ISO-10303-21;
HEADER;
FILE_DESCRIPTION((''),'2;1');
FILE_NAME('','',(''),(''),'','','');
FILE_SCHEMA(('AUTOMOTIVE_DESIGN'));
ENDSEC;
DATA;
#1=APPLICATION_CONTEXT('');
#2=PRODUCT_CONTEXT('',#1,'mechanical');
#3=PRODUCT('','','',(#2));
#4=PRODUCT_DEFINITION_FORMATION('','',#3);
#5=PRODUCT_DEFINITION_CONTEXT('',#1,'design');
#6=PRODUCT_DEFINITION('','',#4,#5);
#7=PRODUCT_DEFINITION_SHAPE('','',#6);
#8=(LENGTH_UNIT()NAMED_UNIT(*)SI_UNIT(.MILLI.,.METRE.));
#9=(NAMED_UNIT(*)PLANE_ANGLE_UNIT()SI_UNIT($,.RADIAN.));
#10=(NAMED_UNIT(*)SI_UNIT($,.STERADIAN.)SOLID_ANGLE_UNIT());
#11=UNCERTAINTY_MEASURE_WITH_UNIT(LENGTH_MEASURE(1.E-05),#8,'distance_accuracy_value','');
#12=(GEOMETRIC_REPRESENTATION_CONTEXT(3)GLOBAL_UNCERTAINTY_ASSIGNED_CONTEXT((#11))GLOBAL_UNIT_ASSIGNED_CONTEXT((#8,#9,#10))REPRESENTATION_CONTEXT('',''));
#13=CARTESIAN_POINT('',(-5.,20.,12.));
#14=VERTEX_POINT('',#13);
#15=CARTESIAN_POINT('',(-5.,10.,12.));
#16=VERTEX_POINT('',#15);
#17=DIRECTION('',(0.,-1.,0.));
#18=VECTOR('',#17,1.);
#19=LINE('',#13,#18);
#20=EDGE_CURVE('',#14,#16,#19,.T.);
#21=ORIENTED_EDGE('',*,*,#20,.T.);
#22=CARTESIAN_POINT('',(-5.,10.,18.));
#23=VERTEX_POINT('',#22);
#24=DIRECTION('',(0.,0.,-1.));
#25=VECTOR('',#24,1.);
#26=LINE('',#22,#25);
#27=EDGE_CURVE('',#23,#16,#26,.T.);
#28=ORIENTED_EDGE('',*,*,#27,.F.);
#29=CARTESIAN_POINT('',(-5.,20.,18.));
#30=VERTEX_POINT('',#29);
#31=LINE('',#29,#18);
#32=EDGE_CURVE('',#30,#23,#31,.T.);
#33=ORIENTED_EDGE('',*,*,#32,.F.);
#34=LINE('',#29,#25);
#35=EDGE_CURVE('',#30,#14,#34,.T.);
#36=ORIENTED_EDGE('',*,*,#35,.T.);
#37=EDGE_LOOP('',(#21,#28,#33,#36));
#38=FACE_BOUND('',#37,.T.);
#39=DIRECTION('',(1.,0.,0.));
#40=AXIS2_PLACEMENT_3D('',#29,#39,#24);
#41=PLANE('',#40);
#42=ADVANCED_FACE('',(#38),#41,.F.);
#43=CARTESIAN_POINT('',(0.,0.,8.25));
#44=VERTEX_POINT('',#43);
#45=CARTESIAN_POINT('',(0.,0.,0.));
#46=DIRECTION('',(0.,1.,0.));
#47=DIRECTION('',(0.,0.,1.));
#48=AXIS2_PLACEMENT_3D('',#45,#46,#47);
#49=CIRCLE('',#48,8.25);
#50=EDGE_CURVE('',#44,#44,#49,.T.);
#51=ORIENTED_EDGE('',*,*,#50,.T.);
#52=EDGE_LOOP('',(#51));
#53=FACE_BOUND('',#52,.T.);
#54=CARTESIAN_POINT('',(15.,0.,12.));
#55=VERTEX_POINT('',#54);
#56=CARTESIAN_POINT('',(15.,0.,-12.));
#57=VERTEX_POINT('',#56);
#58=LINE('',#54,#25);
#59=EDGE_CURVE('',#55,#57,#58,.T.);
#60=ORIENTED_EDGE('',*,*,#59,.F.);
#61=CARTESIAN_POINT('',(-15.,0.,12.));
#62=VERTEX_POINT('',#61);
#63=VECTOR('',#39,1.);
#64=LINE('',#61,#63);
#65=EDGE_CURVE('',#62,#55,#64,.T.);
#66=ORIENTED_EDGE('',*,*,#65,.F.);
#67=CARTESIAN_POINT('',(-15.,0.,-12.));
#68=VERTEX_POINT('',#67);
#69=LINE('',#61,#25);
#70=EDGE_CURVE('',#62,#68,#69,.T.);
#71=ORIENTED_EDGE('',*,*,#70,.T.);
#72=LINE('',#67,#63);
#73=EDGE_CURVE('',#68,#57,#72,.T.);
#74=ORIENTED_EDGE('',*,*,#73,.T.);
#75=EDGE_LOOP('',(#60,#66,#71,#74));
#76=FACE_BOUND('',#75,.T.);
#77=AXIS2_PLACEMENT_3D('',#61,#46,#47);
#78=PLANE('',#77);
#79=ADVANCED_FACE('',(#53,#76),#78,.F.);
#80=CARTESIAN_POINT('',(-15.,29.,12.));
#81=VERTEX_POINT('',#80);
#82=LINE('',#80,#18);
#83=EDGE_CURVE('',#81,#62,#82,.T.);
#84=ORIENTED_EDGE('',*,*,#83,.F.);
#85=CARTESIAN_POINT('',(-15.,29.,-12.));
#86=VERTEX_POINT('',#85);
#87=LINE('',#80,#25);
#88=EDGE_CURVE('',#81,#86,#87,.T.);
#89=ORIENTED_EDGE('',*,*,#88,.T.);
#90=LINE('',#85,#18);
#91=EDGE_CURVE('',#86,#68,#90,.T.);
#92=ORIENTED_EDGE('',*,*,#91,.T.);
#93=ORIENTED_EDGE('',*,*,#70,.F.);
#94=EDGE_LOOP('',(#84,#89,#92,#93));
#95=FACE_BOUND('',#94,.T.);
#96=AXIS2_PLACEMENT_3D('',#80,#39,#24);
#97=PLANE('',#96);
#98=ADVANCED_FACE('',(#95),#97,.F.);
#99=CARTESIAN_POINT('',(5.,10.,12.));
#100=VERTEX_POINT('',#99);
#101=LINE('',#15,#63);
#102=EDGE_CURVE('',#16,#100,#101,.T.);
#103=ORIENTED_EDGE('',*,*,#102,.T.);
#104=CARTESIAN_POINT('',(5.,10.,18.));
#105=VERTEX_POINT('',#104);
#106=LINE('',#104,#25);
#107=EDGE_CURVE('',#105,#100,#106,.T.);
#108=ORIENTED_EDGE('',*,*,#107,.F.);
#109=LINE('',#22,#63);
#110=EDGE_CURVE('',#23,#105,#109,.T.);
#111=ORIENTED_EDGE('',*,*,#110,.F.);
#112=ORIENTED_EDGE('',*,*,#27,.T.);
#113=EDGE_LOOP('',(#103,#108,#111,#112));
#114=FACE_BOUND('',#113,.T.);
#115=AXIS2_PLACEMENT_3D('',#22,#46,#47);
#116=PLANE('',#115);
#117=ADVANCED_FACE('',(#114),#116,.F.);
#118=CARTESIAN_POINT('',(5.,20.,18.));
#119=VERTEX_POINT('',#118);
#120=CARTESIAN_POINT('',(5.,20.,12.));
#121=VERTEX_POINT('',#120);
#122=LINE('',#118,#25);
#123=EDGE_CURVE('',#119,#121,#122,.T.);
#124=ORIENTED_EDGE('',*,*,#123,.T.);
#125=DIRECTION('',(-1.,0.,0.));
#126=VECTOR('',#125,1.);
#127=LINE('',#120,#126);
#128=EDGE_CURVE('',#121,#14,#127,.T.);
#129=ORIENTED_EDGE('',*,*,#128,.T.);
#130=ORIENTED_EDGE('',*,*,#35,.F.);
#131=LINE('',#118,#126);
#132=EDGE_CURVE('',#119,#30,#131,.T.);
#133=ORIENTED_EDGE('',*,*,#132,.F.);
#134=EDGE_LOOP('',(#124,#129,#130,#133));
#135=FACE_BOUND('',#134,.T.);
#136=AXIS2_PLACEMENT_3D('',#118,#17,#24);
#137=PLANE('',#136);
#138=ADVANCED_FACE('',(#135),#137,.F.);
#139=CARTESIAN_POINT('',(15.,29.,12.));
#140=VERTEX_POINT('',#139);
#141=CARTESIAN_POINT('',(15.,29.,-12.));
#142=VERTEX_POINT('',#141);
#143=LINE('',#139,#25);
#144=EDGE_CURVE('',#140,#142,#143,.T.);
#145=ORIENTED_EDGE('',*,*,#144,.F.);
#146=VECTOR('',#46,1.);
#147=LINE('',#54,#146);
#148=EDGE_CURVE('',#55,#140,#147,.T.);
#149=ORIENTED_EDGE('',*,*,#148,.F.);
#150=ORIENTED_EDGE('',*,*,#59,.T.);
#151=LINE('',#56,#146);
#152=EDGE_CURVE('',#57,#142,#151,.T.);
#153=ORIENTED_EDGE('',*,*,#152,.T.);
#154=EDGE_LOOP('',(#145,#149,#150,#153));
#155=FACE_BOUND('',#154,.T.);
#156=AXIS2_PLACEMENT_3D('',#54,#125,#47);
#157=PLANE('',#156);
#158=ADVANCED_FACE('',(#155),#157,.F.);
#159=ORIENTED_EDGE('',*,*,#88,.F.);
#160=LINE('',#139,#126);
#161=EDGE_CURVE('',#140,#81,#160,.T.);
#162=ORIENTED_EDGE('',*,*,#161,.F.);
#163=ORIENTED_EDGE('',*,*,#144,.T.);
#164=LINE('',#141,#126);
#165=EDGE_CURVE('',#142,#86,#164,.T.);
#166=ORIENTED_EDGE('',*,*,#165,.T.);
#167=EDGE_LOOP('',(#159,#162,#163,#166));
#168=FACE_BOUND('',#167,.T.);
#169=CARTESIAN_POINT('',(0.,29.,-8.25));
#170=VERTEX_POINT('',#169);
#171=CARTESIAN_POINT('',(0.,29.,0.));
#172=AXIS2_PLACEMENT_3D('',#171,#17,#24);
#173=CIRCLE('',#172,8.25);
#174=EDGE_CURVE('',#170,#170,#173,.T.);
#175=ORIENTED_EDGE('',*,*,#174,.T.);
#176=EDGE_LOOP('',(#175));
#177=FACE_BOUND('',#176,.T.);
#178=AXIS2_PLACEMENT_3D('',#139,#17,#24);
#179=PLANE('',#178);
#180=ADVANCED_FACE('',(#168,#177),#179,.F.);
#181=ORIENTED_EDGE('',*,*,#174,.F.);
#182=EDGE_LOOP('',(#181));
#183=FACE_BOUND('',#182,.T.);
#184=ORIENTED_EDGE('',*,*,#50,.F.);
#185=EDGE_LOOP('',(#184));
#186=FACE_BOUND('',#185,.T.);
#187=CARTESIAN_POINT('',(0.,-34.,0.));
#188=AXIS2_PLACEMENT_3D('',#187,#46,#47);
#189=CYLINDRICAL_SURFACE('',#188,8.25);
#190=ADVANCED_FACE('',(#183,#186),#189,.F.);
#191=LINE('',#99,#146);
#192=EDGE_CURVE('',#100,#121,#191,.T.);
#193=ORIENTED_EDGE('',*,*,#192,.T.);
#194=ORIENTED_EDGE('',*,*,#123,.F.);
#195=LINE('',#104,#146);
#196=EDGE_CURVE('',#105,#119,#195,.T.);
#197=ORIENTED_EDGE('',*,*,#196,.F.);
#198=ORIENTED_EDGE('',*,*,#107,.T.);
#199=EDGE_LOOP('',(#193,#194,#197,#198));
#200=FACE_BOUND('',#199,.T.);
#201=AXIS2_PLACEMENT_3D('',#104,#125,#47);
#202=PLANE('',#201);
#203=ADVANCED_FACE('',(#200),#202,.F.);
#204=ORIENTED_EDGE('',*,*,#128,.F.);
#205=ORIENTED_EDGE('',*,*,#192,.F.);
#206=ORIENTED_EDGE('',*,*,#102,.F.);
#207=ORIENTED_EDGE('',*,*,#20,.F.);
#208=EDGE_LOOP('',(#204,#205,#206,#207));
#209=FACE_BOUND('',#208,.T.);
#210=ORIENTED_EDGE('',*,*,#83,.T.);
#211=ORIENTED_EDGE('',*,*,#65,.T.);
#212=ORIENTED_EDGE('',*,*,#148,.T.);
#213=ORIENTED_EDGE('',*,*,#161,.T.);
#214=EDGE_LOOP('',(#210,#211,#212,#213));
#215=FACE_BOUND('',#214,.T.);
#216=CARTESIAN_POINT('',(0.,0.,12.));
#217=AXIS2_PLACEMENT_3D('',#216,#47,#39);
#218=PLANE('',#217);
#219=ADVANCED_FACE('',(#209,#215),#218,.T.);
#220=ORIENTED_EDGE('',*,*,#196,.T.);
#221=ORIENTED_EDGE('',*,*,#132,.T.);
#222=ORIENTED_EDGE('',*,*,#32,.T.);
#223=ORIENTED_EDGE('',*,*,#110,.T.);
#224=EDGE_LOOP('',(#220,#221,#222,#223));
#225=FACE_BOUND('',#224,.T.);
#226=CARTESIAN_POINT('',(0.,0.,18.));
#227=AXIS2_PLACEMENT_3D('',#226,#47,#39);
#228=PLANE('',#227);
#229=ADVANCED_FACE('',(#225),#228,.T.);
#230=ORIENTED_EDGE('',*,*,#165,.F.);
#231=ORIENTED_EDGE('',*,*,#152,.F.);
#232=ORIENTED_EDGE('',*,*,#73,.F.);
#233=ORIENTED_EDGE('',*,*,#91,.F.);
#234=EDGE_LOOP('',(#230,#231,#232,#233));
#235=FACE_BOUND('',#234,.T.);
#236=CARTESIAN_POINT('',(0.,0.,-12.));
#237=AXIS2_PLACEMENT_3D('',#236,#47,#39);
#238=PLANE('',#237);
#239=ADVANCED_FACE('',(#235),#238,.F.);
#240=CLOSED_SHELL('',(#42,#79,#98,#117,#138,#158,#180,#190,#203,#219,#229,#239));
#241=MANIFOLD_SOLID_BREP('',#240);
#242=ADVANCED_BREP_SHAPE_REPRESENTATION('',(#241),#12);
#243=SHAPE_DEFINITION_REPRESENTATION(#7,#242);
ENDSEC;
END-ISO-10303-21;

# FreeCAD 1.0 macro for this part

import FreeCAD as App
import Part
import Sketcher
from FreeCAD import Vector
Q = App.Units.Quantity

doc = App.newDocument("Part")
params = doc.addObject("Spreadsheet::Sheet", "Params")
for row, (alias, value) in enumerate([
    ("sketch1_width", "30 mm"),
    ("sketch1_height", "29 mm"),
    ("pad1_length", "24 mm"),
    ("sketch2_diameter", "16.5 mm"),
    ("pocket1_length", "68 mm"),
    ("sketch3_width", "10 mm"),
    ("pad2_length", "6 mm"),
], start=1):
    params.set(f"A{row}", alias)
    params.set(f"B{row}", "=" + value)
    params.setAlias(f"B{row}", alias)

body = doc.addObject("PartDesign::Body", "Body")

# Sketch on XY plane
sketch1 = body.newObject("Sketcher::SketchObject", "Sketch")
sketch1.AttachmentSupport = (doc.getObject("XY_Plane"), [""])
sketch1.MapMode = "FlatFace"
sketch1.addGeometry(Part.LineSegment(Vector(-15, 29, 0), Vector(-15, 0, 0)), False)
sketch1.addGeometry(Part.LineSegment(Vector(-15, 0, 0), Vector(15, 0, 0)), False)
sketch1.addGeometry(Part.LineSegment(Vector(15, 0, 0), Vector(15, 29, 0)), False)
sketch1.addGeometry(Part.LineSegment(Vector(15, 29, 0), Vector(-15, 29, 0)), False)
sketch1.addConstraint(Sketcher.Constraint("Coincident", 0, 2, 1, 1))
sketch1.addConstraint(Sketcher.Constraint("Coincident", 1, 2, 2, 1))
sketch1.addConstraint(Sketcher.Constraint("Coincident", 2, 2, 3, 1))
sketch1.addConstraint(Sketcher.Constraint("Coincident", 3, 2, 0, 1))
sketch1.addConstraint(Sketcher.Constraint("Vertical", 0))
sketch1.addConstraint(Sketcher.Constraint("Horizontal", 1))
sketch1.addConstraint(Sketcher.Constraint("Vertical", 2))
sketch1.addConstraint(Sketcher.Constraint("Horizontal", 3))
sketch1.addConstraint(Sketcher.Constraint("Symmetric", 0, 2, 1, 2, -1, 1))
sketch1.addConstraint(Sketcher.Constraint("DistanceX", 1, 1, 1, 2, Q("30 mm")))
sketch1.addConstraint(Sketcher.Constraint("DistanceY", 0, 2, 0, 1, Q("29 mm")))
sketch1.setExpression("Constraints[9]", "Params.sketch1_width")
sketch1.setExpression("Constraints[10]", "Params.sketch1_height")
pad1 = body.newObject("PartDesign::Pad", "Pad")
pad1.Profile = sketch1
pad1.setExpression("Length", "Params.pad1_length")
pad1.Midplane = True

# Sketch on XZ plane
sketch2 = body.newObject("Sketcher::SketchObject", "Sketch001")
sketch2.AttachmentSupport = (doc.getObject("XZ_Plane"), [""])
sketch2.MapMode = "FlatFace"
sketch2.addGeometry(Part.Circle(Vector(0, 0, 0), Vector(0, 0, 1), 8), False)
sketch2.addConstraint(Sketcher.Constraint("Coincident", 0, 3, -1, 1))
sketch2.addConstraint(Sketcher.Constraint("Diameter", 0, Q("16.5 mm")))
sketch2.setExpression("Constraints[1]", "Params.sketch2_diameter")
pocket1 = body.newObject("PartDesign::Pocket", "Pocket")
pocket1.Profile = sketch2
pocket1.setExpression("Length", "Params.pocket1_length")
pocket1.Midplane = True

# Sketch on XY plane
sketch3 = body.newObject("Sketcher::SketchObject", "Sketch002")
sketch3.AttachmentSupport = (doc.getObject("XY_Plane"), [""])
sketch3.MapMode = "FlatFace"
sketch3.AttachmentOffset = App.Placement(Vector(0, 0, 12), App.Rotation())
sketch3.addGeometry(Part.LineSegment(Vector(-5, 20, 0), Vector(-5, 10, 0)), False)
sketch3.addGeometry(Part.LineSegment(Vector(-5, 10, 0), Vector(5, 10, 0)), False)
sketch3.addGeometry(Part.LineSegment(Vector(5, 10, 0), Vector(5, 20, 0)), False)
sketch3.addGeometry(Part.LineSegment(Vector(5, 20, 0), Vector(-5, 20, 0)), False)
sketch3.addConstraint(Sketcher.Constraint("Coincident", 0, 2, 1, 1))
sketch3.addConstraint(Sketcher.Constraint("Coincident", 1, 2, 2, 1))
sketch3.addConstraint(Sketcher.Constraint("Coincident", 2, 2, 3, 1))
sketch3.addConstraint(Sketcher.Constraint("Coincident", 3, 2, 0, 1))
sketch3.addConstraint(Sketcher.Constraint("Vertical", 0))
sketch3.addConstraint(Sketcher.Constraint("Horizontal", 1))
sketch3.addConstraint(Sketcher.Constraint("Vertical", 2))
sketch3.addConstraint(Sketcher.Constraint("Horizontal", 3))
sketch3.addConstraint(Sketcher.Constraint("Equal", 3, 0))
sketch3.addConstraint(Sketcher.Constraint("DistanceX", 1, 1, 1, 2, Q("10 mm")))
sketch3.addConstraint(Sketcher.Constraint("DistanceX", 0, 2, -1, 1, Q("5 mm")))
sketch3.addConstraint(Sketcher.Constraint("DistanceY", -1, 1, 0, 2, Q("10 mm")))
sketch3.setExpression("Constraints[9]", "Params.sketch3_width")
pad2 = body.newObject("PartDesign::Pad", "Pad001")
pad2.Profile = sketch3
pad2.setExpression("Length", "Params.pad2_length")

doc.recompute()
